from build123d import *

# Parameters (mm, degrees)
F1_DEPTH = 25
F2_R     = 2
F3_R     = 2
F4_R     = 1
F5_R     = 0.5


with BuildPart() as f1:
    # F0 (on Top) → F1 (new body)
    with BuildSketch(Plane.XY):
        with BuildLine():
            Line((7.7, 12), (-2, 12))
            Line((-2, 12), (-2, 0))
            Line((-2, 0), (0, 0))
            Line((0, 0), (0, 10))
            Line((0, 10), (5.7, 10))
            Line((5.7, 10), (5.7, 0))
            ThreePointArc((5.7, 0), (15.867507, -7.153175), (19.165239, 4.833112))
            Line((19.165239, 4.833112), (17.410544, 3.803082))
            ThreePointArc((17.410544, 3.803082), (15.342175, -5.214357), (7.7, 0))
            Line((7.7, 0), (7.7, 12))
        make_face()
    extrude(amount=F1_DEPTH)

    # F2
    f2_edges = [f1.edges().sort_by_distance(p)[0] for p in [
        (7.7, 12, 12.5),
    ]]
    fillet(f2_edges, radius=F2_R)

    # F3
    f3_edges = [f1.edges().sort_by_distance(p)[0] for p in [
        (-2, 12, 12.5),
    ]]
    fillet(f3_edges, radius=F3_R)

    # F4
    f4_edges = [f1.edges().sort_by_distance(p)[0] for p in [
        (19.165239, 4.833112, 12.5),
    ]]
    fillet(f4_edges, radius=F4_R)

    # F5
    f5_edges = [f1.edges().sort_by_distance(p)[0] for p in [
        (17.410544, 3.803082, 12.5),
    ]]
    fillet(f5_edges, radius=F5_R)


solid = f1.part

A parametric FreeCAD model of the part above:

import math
import FreeCAD as App
import Part
import Sketcher
from FreeCAD import Vector


def edges_at(feature, points):
    """Names of the edges that pass closest to the given points."""
    edges = feature.Shape.Edges
    near = lambda p: min(range(len(edges)), key=lambda i: edges[i].distToShape(Part.Vertex(*p))[0])
    return sorted({f"Edge{near(p) + 1}" for p in points})

doc = App.newDocument("Part")
params = doc.addObject("Spreadsheet::Sheet", "Params")
for row, (alias, value) in enumerate([
    ("sketch1_radius", "7.6 mm"),
    ("sketch1_radius2", "5.6 mm"),
    ("sketch1_width", "2 mm"),
    ("sketch1_height", "12 mm"),
    ("sketch1_height2", "10 mm"),
    ("pad1_length", "25 mm"),
    ("fillet_radius", "2 mm"),
    ("fillet2_radius", "2 mm"),
    ("fillet3_radius", "1 mm"),
    ("fillet4_radius", "0.5 mm"),
], start=1):
    params.set(f"A{row}", alias)
    params.set(f"B{row}", "=" + value)
    params.setAlias(f"B{row}", alias)

body = doc.addObject("PartDesign::Body", "Body")

# Sketch on XY plane
sketch1 = body.newObject("Sketcher::SketchObject", "Sketch")
sketch1.AttachmentSupport = (doc.getObject("XY_Plane"), [""])
sketch1.MapMode = "FlatFace"
sketch1.addGeometry([
    Part.LineSegment(Vector(7.7, 12, 0), Vector(-2, 12, 0)),  # 0
    Part.LineSegment(Vector(-2, 12, 0), Vector(-2, 0, 0)),  # 1
    Part.LineSegment(Vector(-2, 0, 0), Vector(0, 0, 0)),  # 2
    Part.LineSegment(Vector(0, 0, 0), Vector(0, 10, 0)),  # 3
    Part.LineSegment(Vector(0, 10, 0), Vector(5.7, 10, 0)),  # 4
    Part.LineSegment(Vector(5.7, 10, 0), Vector(5.7, 0, 0)),  # 5
    Part.ArcOfCircle(Part.Circle(Vector(13.3, 0, 0), Vector(0, 0, 1), 7.6), math.radians(179.999998), math.radians(399.489426)),  # 6
    Part.LineSegment(Vector(19.165239, 4.833112, 0), Vector(17.410544, 3.803082, 0)),  # 7
    Part.ArcOfCircle(Part.Circle(Vector(13.3, 0, 0), Vector(0, 0, 1), 5.6), math.radians(-179.999996), math.radians(42.775048)),  # 8
    Part.LineSegment(Vector(7.7, 0, 0), Vector(7.7, 12, 0)),  # 9
], False)
sketch1.addConstraint([
    Sketcher.Constraint("Coincident", 0, 2, 1, 1),
    Sketcher.Constraint("Coincident", 1, 2, 2, 1),
    Sketcher.Constraint("Coincident", 2, 2, 3, 1),
    Sketcher.Constraint("Coincident", 3, 2, 4, 1),
    Sketcher.Constraint("Coincident", 4, 2, 5, 1),
    Sketcher.Constraint("Tangent", 5, 2, 6, 1),
    Sketcher.Constraint("Coincident", 6, 2, 7, 1),
    Sketcher.Constraint("Coincident", 7, 2, 8, 2),
    Sketcher.Constraint("Tangent", 8, 1, 9, 1),
    Sketcher.Constraint("Coincident", 9, 2, 0, 1),
    Sketcher.Constraint("Horizontal", 0),
    Sketcher.Constraint("Vertical", 1),
    Sketcher.Constraint("Horizontal", 2),
    Sketcher.Constraint("Vertical", 3),
    Sketcher.Constraint("Horizontal", 4),
    Sketcher.Constraint("Vertical", 5),
    Sketcher.Constraint("Vertical", 9),
    Sketcher.Constraint("Coincident", 2, 2, -1, 1),
    Sketcher.Constraint("Coincident", 8, 3, 6, 3),
    Sketcher.Constraint("PointOnObject", 6, 3, -1),
    Sketcher.Constraint("Radius", 6, 7.6),
    Sketcher.Constraint("Radius", 8, 5.6),
    Sketcher.Constraint("DistanceX", 2, 1, 2, 2, 2.0),
    Sketcher.Constraint("DistanceY", 1, 2, 1, 1, 12.0),
    Sketcher.Constraint("DistanceY", 3, 1, 3, 2, 10.0),
    Sketcher.Constraint("DistanceX", 0, 2, 0, 1, 9.7),
    Sketcher.Constraint("Distance", 7, 2.034678),
    Sketcher.Constraint("DistanceX", -1, 1, 6, 2, 19.165239),
])
sketch1.setExpression("Constraints[20]", "Params.sketch1_radius")
sketch1.setExpression("Constraints[21]", "Params.sketch1_radius2")
sketch1.setExpression("Constraints[22]", "Params.sketch1_width")
sketch1.setExpression("Constraints[23]", "Params.sketch1_height")
sketch1.setExpression("Constraints[24]", "Params.sketch1_height2")
pad1 = body.newObject("PartDesign::Pad", "Pad")
pad1.Profile = sketch1
pad1.setExpression("Length", "Params.pad1_length")
doc.recompute()

fillet = body.newObject("PartDesign::Fillet", "Fillet")
fillet.Base = (pad1, edges_at(pad1, [(7.7, 12, 12.5)]))
fillet.setExpression("Radius", "Params.fillet_radius")
doc.recompute()

fillet2 = body.newObject("PartDesign::Fillet", "Fillet001")
fillet2.Base = (fillet, edges_at(fillet, [(-2, 12, 12.5)]))
fillet2.setExpression("Radius", "Params.fillet2_radius")
doc.recompute()

fillet3 = body.newObject("PartDesign::Fillet", "Fillet002")
fillet3.Base = (fillet2, edges_at(fillet2, [(19.165, 4.833, 12.5)]))
fillet3.setExpression("Radius", "Params.fillet3_radius")
doc.recompute()

fillet4 = body.newObject("PartDesign::Fillet", "Fillet003")
fillet4.Base = (fillet3, edges_at(fillet3, [(17.411, 3.803, 12.5)]))
fillet4.setExpression("Radius", "Params.fillet4_radius")

doc.recompute()
